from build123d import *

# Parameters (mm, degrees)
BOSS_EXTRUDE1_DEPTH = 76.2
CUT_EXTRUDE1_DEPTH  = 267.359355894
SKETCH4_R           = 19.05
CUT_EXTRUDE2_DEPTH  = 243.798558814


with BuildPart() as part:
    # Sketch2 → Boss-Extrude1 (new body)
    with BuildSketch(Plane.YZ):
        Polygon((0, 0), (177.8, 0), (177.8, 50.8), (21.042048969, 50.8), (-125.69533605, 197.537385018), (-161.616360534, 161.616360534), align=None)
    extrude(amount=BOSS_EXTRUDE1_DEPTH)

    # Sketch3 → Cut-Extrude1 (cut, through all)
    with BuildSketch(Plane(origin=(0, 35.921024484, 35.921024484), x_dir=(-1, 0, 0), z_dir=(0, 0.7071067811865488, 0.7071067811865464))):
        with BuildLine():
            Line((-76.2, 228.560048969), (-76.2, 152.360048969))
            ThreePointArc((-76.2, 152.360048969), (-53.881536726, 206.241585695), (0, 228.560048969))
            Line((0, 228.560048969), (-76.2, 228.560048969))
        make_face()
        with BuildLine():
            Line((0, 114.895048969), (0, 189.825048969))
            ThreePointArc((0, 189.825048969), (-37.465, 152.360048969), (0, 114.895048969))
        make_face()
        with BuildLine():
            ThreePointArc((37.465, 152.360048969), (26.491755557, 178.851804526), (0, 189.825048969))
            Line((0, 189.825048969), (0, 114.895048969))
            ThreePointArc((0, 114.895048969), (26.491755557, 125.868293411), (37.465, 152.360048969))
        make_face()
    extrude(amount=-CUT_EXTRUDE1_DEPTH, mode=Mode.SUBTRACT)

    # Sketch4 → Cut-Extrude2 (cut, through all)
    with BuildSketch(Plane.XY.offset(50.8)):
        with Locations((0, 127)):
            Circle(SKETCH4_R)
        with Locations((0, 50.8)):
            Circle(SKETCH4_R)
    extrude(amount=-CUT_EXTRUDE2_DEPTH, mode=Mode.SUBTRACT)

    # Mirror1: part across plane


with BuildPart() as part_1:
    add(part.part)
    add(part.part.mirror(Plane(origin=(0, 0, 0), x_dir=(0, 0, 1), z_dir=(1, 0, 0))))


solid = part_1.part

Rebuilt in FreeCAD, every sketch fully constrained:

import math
import FreeCAD as App
import Part
import Sketcher
Q = App.Units.Quantity

doc = App.newDocument("Part")
params = doc.addObject("Spreadsheet::Sheet", "Params")
for row, (alias, value) in enumerate([
    ("sketch1_width", "7 in"),
    ("sketch1_height", "2 in"),
    ("sketch1_length", "2 in"),
    ("sketch1_length2", "8.17 in"),
    ("pad1_length", "3 in"),
    ("sketch2_radius", "3 in"),
    ("sketch2_radius2", "1.475 in"),
    ("sketch3_diameter", "1.5 in"),
], start=1):
    params.set(f"A{row}", alias)
    params.set(f"B{row}", "=" + value)
    params.setAlias(f"B{row}", alias)

body = doc.addObject("PartDesign::Body", "Body")

# Sketch on YZ plane
sketch1 = doc.addObject("Sketcher::SketchObject", "Sketch")
body.addObject(sketch1)
sketch1.AttachmentSupport = (doc.YZ_Plane, [""])
sketch1.MapMode = "FlatFace"
sketch1.addGeometry(Part.LineSegment(App.Vector(0, 0, 0), App.Vector(178, 0, 0)), False)
sketch1.addGeometry(Part.LineSegment(App.Vector(178, 0, 0), App.Vector(178, 51, 0)), False)
sketch1.addGeometry(Part.LineSegment(App.Vector(178, 51, 0), App.Vector(21, 51, 0)), False)
sketch1.addGeometry(Part.LineSegment(App.Vector(21, 51, 0), App.Vector(-126, 198, 0)), False)
sketch1.addGeometry(Part.LineSegment(App.Vector(-126, 198, 0), App.Vector(-162, 162, 0)), False)
sketch1.addGeometry(Part.LineSegment(App.Vector(-162, 162, 0), App.Vector(0, 0, 0)), False)
sketch1.addConstraint(Sketcher.Constraint("Coincident", 0, 2, 1, 1))
sketch1.addConstraint(Sketcher.Constraint("Coincident", 1, 2, 2, 1))
sketch1.addConstraint(Sketcher.Constraint("Coincident", 2, 2, 3, 1))
sketch1.addConstraint(Sketcher.Constraint("Coincident", 3, 2, 4, 1))
sketch1.addConstraint(Sketcher.Constraint("Coincident", 4, 2, 5, 1))
sketch1.addConstraint(Sketcher.Constraint("Coincident", 5, 2, 0, 1))
sketch1.addConstraint(Sketcher.Constraint("Horizontal", 0))
sketch1.addConstraint(Sketcher.Constraint("Vertical", 1))
sketch1.addConstraint(Sketcher.Constraint("Horizontal", 2))
sketch1.addConstraint(Sketcher.Constraint("Coincident", 5, 2, -1, 1))
sketch1.addConstraint(Sketcher.Constraint("Perpendicular", 3, 4))
sketch1.addConstraint(Sketcher.Constraint("Perpendicular", 4, 5))
sketch1.addConstraint(Sketcher.Constraint("DistanceX", 0, 1, 0, 2, Q("7 in")))
sketch1.addConstraint(Sketcher.Constraint("DistanceY", 1, 1, 1, 2, Q("2 in")))
sketch1.addConstraint(Sketcher.Constraint("Distance", 4, Q("2 in")))
sketch1.addConstraint(Sketcher.Constraint("Angle", 3, Q("135 deg")))
sketch1.addConstraint(Sketcher.Constraint("Distance", 3, Q("8.17 in")))
sketch1.setExpression("Constraints[12]", "Params.sketch1_width")
sketch1.setExpression("Constraints[13]", "Params.sketch1_height")
sketch1.setExpression("Constraints[14]", "Params.sketch1_length")
sketch1.setExpression("Constraints[16]", "Params.sketch1_length2")
pad1 = doc.addObject("PartDesign::Pad", "Pad")
body.addObject(pad1)
pad1.Profile = sketch1
pad1.setExpression("Length", "Params.pad1_length")

# Sketch on an angled plane
sketch2 = doc.addObject("Sketcher::SketchObject", "Sketch001")
body.addObject(sketch2)
sketch2.Placement = App.Placement(App.Vector(0, 35.921024, 35.921024), App.Rotation(App.Vector(-1, 0, 0), App.Vector(0, -0.707106781, 0.707106781), App.Vector(0, 0.707106781, 0.707106781), "ZXY"))
sketch2.addGeometry(Part.LineSegment(App.Vector(-76, 229, 0), App.Vector(-76, 152, 0)), False)
sketch2.addGeometry(Part.ArcOfCircle(Part.Circle(App.Vector(0, 152, 0), App.Vector(0, 0, 1), 76), math.radians(90), math.radians(180)), False)
sketch2.addGeometry(Part.LineSegment(App.Vector(0, 229, 0), App.Vector(-76, 229, 0)), False)
sketch2.addGeometry(Part.ArcOfCircle(Part.Circle(App.Vector(0, 152, 0), App.Vector(0, 0, 1), 37), math.radians(90), math.radians(270)), False)
sketch2.addGeometry(Part.ArcOfCircle(Part.Circle(App.Vector(0, 152, 0), App.Vector(0, 0, 1), 37), math.radians(-90), math.radians(0)), False)
sketch2.addGeometry(Part.ArcOfCircle(Part.Circle(App.Vector(0, 152, 0), App.Vector(0, 0, 1), 37), math.radians(0), math.radians(90)), False)
sketch2.addConstraint(Sketcher.Constraint("Tangent", 0, 2, 1, 2))
sketch2.addConstraint(Sketcher.Constraint("Tangent", 1, 1, 2, 1))
sketch2.addConstraint(Sketcher.Constraint("Coincident", 2, 2, 0, 1))
sketch2.addConstraint(Sketcher.Constraint("Tangent", 3, 2, 4, 1))
sketch2.addConstraint(Sketcher.Constraint("Tangent", 4, 2, 5, 1))
sketch2.addConstraint(Sketcher.Constraint("Tangent", 5, 2, 3, 1))
sketch2.addConstraint(Sketcher.Constraint("Vertical", 0))
sketch2.addConstraint(Sketcher.Constraint("Horizontal", 2))
sketch2.addConstraint(Sketcher.Constraint("Coincident", 3, 3, 1, 3))
sketch2.addConstraint(Sketcher.Constraint("PointOnObject", 1, 3, -2))
sketch2.addConstraint(Sketcher.Constraint("PointOnObject", 3, 2, -2))
sketch2.addConstraint(Sketcher.Constraint("PointOnObject", 5, 2, -2))
sketch2.addConstraint(Sketcher.Constraint("Horizontal", 0, 2, 4, 2))
sketch2.addConstraint(Sketcher.Constraint("Radius", 1, Q("3 in")))
sketch2.addConstraint(Sketcher.Constraint("Radius", 3, Q("1.475 in")))
sketch2.addConstraint(Sketcher.Constraint("DistanceY", -1, 1, 1, 3, Q("152.360049 mm")))
sketch2.setExpression("Constraints[13]", "Params.sketch2_radius")
sketch2.setExpression("Constraints[14]", "Params.sketch2_radius2")
pocket1 = doc.addObject("PartDesign::Pocket", "Pocket")
body.addObject(pocket1)
pocket1.Profile = sketch2
pocket1.Type = "ThroughAll"

# Sketch on XY plane
sketch3 = doc.addObject("Sketcher::SketchObject", "Sketch002")
body.addObject(sketch3)
sketch3.AttachmentSupport = (doc.XY_Plane, [""])
sketch3.MapMode = "FlatFace"
sketch3.AttachmentOffset = App.Placement(App.Vector(0, 0, 2 * 25.4), App.Rotation())
sketch3.addGeometry(Part.Circle(App.Vector(0, 127, 0), App.Vector(0, 0, 1), 19), False)
sketch3.addGeometry(Part.Circle(App.Vector(0, 51, 0), App.Vector(0, 0, 1), 19), False)
sketch3.addConstraint(Sketcher.Constraint("Equal", 0, 1))
sketch3.addConstraint(Sketcher.Constraint("PointOnObject", 0, 3, -2))
sketch3.addConstraint(Sketcher.Constraint("PointOnObject", 1, 3, -2))
sketch3.addConstraint(Sketcher.Constraint("Diameter", 0, Q("1.5 in")))
sketch3.addConstraint(Sketcher.Constraint("DistanceY", -1, 1, 0, 3, Q("5 in")))
sketch3.addConstraint(Sketcher.Constraint("DistanceY", -1, 1, 1, 3, Q("2 in")))
sketch3.setExpression("Constraints[3]", "Params.sketch3_diameter")
pocket2 = doc.addObject("PartDesign::Pocket", "Pocket001")
body.addObject(pocket2)
pocket2.Profile = sketch3
pocket2.Type = "ThroughAll"
body2 = doc.addObject("PartDesign::Body", "Body001")
doc.recompute()

body2.BaseFeature = body
doc.recompute()

mirroring = doc.addObject("Part::Mirroring", "Mirroring")
mirroring.Source = body
mirroring.Base = App.Vector(0, 0, 0)
mirroring.Normal = App.Vector(1, 0, 0)
body3 = doc.addObject("PartDesign::Body", "Body002")
body3.BaseFeature = mirroring
boolean = doc.addObject("PartDesign::Boolean", "Boolean")
body2.addObject(boolean)
boolean.Type = "Fuse"
boolean.addObjects([body3])
doc.recompute()
mirroring.Visibility = False

doc.recompute()
